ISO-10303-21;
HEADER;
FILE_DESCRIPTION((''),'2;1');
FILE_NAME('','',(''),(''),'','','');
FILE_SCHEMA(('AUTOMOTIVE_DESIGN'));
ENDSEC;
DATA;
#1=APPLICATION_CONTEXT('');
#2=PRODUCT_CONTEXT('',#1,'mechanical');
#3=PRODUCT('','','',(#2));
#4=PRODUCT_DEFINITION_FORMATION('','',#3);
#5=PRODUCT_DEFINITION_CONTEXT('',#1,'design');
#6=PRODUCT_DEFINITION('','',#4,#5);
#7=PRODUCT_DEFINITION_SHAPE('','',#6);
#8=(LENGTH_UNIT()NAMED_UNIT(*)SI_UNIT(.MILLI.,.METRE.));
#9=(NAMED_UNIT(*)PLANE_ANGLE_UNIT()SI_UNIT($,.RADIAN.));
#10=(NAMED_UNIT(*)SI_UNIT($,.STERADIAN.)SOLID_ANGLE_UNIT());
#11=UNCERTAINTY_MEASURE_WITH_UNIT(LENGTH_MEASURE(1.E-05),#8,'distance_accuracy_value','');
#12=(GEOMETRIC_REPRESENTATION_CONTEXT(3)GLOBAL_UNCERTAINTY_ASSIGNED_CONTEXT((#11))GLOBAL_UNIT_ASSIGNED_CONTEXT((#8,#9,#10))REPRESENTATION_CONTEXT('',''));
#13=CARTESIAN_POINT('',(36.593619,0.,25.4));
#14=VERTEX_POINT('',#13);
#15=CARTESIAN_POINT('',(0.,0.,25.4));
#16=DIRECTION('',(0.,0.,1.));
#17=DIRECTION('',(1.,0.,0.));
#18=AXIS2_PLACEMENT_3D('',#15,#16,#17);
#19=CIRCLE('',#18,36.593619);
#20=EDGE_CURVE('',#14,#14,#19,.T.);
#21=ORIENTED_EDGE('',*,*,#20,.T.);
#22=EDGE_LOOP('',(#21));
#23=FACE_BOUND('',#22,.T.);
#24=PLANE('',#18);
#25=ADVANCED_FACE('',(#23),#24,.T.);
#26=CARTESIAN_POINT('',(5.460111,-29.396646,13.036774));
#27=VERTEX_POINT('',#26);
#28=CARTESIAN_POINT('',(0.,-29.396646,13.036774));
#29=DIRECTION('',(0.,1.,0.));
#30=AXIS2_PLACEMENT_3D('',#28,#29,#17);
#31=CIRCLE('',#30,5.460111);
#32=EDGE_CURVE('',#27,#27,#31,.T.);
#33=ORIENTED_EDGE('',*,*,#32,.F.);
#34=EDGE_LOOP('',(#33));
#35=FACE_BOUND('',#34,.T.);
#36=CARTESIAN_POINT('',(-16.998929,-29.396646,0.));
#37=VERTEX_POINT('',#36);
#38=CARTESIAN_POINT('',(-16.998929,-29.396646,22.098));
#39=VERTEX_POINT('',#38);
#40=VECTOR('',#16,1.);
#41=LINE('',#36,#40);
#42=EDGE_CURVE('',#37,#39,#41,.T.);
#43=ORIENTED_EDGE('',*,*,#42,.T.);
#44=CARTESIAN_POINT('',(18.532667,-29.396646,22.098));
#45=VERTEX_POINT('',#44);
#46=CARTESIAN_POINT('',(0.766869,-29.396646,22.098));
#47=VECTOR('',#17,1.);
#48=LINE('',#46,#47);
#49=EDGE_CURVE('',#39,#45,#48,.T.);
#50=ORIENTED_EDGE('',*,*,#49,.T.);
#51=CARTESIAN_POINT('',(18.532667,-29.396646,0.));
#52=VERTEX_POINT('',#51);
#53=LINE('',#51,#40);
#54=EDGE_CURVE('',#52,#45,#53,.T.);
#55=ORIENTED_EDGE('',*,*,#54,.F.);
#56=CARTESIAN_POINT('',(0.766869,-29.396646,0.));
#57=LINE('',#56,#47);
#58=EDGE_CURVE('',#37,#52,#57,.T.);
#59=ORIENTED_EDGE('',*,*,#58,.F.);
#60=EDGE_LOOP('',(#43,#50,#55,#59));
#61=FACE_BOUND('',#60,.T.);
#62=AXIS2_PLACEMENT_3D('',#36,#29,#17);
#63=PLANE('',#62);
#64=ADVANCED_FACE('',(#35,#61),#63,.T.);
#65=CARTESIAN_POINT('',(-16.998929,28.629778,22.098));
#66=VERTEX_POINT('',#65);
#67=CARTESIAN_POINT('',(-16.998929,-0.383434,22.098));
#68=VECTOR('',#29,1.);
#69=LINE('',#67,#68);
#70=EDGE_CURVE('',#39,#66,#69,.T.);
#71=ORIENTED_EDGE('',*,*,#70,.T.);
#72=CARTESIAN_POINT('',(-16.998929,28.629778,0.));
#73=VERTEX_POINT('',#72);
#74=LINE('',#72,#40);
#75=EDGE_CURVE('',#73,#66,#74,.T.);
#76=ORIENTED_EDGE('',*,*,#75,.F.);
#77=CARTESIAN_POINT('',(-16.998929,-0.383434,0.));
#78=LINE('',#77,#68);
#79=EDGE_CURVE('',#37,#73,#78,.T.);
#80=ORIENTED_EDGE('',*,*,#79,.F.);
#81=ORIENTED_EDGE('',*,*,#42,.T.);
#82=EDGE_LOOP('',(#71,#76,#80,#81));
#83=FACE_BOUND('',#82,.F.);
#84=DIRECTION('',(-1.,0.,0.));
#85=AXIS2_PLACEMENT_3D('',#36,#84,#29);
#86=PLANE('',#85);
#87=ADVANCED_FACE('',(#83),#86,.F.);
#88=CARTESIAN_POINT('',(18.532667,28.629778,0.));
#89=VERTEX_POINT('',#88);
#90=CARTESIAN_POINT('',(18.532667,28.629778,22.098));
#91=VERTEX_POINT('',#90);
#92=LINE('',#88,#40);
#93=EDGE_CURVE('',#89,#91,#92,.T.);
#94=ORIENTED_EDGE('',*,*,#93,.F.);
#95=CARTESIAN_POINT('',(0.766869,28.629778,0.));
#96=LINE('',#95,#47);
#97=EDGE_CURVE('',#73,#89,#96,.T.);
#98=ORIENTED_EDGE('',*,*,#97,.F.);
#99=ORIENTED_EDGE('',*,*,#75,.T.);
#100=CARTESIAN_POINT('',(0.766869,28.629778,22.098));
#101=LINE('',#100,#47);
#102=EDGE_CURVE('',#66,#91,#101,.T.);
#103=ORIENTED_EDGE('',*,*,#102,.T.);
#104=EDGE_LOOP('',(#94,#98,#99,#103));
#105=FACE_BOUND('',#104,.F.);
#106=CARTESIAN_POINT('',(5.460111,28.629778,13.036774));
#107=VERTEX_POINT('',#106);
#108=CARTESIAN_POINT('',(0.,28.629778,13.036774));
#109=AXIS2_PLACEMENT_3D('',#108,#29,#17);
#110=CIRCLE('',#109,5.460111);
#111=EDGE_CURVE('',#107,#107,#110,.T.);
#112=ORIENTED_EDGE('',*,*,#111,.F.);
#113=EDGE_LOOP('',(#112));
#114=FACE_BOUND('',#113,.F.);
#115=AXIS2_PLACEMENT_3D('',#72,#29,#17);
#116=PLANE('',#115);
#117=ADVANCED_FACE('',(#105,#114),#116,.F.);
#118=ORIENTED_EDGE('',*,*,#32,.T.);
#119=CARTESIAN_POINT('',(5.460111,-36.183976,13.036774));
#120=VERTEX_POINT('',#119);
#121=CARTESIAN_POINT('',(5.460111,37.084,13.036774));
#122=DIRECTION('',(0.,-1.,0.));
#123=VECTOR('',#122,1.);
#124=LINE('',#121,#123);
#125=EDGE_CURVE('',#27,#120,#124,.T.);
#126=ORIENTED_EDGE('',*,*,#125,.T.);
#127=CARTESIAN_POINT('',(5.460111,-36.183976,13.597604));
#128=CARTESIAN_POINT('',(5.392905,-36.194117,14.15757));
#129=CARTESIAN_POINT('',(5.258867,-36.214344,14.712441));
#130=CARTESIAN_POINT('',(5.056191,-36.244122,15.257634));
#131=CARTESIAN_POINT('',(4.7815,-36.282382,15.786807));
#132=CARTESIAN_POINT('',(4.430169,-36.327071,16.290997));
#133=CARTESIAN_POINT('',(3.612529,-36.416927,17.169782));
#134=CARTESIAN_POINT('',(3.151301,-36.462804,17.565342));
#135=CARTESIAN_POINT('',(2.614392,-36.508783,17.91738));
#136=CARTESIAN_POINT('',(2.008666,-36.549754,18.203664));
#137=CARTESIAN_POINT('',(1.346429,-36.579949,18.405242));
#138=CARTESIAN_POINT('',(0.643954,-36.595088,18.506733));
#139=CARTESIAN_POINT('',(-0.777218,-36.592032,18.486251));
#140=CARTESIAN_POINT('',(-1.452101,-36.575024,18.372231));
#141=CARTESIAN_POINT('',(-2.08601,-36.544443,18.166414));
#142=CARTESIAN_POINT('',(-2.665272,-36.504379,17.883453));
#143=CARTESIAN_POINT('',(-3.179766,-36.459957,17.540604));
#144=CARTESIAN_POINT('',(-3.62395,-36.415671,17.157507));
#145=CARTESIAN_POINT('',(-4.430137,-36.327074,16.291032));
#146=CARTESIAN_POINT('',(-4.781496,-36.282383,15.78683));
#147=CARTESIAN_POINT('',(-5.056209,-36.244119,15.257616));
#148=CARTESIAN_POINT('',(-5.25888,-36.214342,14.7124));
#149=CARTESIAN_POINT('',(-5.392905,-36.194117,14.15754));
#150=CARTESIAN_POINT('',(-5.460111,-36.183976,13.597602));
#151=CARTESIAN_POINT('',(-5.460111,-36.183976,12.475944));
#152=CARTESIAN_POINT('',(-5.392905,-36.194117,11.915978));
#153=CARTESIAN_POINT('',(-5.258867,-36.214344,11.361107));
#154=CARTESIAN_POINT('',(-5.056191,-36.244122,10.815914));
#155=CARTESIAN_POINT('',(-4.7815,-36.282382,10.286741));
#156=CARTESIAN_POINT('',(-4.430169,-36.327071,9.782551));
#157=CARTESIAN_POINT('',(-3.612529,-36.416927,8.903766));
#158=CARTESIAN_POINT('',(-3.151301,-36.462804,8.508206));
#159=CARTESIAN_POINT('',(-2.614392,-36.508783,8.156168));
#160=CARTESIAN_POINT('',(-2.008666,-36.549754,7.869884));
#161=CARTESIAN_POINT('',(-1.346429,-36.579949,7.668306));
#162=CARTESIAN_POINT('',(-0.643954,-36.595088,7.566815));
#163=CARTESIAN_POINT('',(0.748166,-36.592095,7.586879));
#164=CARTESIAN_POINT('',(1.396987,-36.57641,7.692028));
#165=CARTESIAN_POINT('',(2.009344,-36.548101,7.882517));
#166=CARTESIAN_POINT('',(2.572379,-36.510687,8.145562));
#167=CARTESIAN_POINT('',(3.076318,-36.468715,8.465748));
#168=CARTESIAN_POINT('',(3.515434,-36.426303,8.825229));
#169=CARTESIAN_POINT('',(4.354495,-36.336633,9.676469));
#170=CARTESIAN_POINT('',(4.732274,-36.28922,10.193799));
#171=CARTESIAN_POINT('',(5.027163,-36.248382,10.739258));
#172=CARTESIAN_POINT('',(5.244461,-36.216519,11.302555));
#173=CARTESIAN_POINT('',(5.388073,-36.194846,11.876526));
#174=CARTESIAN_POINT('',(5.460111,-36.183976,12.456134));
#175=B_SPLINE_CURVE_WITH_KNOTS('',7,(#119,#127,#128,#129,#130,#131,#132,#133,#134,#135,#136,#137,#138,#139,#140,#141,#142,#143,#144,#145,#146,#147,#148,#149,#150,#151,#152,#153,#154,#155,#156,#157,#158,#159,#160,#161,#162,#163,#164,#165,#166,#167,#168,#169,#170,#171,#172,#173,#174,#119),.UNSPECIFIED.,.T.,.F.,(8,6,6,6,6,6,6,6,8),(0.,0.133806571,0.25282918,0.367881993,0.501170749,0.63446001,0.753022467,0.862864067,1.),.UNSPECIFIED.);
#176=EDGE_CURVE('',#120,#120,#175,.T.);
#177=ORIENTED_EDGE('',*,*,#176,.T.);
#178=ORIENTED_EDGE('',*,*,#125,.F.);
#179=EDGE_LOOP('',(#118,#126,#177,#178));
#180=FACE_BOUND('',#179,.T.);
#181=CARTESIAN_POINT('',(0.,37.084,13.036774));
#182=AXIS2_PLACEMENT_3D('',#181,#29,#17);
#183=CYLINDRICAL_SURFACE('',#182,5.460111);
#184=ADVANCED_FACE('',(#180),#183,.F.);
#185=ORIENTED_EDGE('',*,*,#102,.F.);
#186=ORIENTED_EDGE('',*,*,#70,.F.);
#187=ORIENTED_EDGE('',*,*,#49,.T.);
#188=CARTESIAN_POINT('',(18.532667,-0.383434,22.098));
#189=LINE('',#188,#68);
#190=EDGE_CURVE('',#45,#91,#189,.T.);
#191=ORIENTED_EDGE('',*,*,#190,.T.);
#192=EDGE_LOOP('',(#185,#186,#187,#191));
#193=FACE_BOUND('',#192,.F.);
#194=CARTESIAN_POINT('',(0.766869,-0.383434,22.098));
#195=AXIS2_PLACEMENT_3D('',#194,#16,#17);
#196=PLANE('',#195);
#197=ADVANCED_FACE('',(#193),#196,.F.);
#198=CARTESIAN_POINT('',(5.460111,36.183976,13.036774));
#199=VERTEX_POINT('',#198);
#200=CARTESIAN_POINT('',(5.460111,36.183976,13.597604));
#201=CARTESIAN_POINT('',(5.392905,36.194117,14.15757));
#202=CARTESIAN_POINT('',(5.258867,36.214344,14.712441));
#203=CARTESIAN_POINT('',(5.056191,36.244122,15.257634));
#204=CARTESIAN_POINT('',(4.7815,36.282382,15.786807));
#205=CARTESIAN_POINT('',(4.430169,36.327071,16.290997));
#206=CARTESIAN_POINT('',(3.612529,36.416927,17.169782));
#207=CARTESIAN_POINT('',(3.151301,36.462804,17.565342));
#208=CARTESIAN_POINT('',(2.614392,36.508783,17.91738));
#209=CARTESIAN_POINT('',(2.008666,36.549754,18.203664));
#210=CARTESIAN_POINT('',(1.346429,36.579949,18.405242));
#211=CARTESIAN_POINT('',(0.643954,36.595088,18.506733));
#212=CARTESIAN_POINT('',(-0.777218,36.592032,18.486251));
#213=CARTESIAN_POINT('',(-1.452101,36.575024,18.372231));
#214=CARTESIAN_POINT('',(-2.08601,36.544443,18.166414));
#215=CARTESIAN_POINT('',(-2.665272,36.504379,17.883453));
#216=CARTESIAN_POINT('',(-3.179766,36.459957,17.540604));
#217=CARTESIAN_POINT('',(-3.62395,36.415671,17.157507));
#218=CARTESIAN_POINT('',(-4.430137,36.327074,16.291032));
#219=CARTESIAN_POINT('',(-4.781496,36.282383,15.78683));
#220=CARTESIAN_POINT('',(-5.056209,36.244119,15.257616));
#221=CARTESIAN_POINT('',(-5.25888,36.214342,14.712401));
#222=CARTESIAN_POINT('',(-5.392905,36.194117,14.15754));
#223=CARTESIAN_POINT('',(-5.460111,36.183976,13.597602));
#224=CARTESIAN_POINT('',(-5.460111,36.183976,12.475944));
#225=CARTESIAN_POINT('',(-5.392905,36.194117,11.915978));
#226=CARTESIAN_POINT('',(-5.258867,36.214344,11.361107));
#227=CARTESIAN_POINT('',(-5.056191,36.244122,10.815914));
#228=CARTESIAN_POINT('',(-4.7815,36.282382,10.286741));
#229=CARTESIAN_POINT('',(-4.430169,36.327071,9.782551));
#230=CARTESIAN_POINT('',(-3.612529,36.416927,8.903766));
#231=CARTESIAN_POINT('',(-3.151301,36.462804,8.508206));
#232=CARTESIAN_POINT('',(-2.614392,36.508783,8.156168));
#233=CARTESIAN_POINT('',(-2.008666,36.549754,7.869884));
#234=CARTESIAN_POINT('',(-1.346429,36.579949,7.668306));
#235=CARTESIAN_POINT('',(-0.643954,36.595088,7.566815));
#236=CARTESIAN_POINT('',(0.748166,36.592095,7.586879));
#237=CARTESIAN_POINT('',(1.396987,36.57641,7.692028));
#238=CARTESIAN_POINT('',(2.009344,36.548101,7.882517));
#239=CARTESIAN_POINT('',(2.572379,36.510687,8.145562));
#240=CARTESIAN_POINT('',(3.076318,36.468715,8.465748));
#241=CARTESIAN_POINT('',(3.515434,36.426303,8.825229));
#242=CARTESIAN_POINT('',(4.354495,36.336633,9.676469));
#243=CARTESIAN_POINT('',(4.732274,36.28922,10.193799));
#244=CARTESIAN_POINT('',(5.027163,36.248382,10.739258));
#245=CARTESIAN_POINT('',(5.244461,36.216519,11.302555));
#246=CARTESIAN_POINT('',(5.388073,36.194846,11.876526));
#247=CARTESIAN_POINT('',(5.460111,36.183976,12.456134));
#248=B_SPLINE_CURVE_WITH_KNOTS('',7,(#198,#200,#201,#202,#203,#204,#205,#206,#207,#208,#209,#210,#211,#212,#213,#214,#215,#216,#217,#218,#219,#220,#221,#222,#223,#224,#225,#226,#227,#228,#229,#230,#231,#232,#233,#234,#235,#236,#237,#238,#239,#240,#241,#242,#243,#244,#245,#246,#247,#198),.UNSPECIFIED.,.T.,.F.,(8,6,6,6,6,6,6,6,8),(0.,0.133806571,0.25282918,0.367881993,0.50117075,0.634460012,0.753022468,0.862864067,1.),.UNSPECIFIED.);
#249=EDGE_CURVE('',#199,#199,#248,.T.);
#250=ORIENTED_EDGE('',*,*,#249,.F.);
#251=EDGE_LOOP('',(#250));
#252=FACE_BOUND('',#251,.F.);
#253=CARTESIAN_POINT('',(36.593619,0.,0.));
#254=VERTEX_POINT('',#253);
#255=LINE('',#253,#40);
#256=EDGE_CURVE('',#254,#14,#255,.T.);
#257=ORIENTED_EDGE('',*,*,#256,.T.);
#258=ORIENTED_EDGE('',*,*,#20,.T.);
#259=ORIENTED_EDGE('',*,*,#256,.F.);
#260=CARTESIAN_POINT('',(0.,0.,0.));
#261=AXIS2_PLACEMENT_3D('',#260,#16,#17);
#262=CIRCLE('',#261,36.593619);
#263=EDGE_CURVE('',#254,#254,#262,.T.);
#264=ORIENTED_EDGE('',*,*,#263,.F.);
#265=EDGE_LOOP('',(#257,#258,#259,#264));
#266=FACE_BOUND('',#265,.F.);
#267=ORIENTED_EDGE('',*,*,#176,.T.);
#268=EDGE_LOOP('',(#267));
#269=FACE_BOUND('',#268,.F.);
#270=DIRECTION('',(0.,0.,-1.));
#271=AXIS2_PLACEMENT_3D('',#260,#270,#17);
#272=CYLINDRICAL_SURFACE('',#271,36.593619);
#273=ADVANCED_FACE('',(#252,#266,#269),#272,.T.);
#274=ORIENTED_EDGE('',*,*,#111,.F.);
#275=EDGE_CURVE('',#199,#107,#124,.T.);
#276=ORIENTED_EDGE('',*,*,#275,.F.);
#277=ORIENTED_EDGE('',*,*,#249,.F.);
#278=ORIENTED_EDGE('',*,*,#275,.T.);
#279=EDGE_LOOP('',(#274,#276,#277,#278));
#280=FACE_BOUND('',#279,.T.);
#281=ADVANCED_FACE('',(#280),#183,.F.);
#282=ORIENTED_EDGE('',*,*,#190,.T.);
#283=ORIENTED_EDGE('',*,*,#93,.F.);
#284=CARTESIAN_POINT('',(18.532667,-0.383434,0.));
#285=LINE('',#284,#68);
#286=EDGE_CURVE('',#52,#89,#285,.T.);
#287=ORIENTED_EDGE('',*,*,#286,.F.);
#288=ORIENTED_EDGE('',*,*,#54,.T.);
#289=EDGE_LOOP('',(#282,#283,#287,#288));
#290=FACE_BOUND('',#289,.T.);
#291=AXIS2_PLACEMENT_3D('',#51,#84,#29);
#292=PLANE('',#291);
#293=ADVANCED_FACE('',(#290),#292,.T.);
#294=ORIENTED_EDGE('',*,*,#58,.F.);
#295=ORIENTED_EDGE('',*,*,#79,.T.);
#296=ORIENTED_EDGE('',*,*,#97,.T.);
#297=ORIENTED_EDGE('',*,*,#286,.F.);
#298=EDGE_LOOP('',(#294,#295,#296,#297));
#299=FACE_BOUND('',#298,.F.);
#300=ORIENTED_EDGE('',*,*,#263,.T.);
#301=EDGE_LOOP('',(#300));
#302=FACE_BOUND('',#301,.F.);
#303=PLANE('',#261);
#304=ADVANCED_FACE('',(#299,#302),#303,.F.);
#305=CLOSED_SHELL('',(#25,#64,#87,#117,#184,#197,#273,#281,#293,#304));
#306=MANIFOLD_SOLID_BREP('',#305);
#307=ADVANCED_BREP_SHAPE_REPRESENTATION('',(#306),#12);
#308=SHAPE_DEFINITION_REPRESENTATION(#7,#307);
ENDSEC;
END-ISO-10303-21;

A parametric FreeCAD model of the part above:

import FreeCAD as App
import Part
import Sketcher
Q = App.Units.Quantity

doc = App.newDocument("Part")
body = doc.addObject("PartDesign::Body", "Body")

# Sketch on XY plane
sketch1 = body.newObject("Sketcher::SketchObject", "Sketch")
sketch1.AttachmentSupport = (doc.getObject("XY_Plane"), [""])
sketch1.MapMode = "FlatFace"
sketch1.addGeometry(Part.Circle(App.Vector(0, 0, 0), App.Vector(0, 0, 1), 37), False)
sketch1.addConstraint(Sketcher.Constraint("Coincident", 0, 3, -1, 1))
sketch1.addConstraint(Sketcher.Constraint("Diameter", 0, 73.187238))
pad1 = body.newObject("PartDesign::Pad", "Pad")
pad1.Profile = sketch1
pad1.Length = Q("1 in")

# Sketch on XZ plane
sketch2 = body.newObject("Sketcher::SketchObject", "Sketch001")
sketch2.AttachmentSupport = (doc.getObject("XZ_Plane"), [""])
sketch2.MapMode = "FlatFace"
sketch2.AttachmentOffset = App.Placement(App.Vector(0, 0, -1.46 * 25.4), App.Rotation())
sketch2.addGeometry(Part.Circle(App.Vector(0, 13, 0), App.Vector(0, 0, 1), 5), False)
sketch2.addConstraint(Sketcher.Constraint("PointOnObject", 0, 3, -2))
sketch2.addConstraint(Sketcher.Constraint("Diameter", 0, 10.920222))
sketch2.addConstraint(Sketcher.Constraint("DistanceY", -1, 1, 0, 3, 13.036774))
pocket1 = body.newObject("PartDesign::Pocket", "Pocket")
pocket1.Profile = sketch2
pocket1.Length = Q("3.02 in")
pocket1.Reversed = True

# Sketch on XY plane
sketch3 = body.newObject("Sketcher::SketchObject", "Sketch002")
sketch3.AttachmentSupport = (doc.getObject("XY_Plane"), [""])
sketch3.MapMode = "FlatFace"
sketch3.addGeometry(Part.LineSegment(App.Vector(-17, 29, 0), App.Vector(-17, -29, 0)), False)
sketch3.addGeometry(Part.LineSegment(App.Vector(-17, -29, 0), App.Vector(19, -29, 0)), False)
sketch3.addGeometry(Part.LineSegment(App.Vector(19, -29, 0), App.Vector(19, 29, 0)), False)
sketch3.addGeometry(Part.LineSegment(App.Vector(19, 29, 0), App.Vector(-17, 29, 0)), False)
sketch3.addConstraint(Sketcher.Constraint("Coincident", 0, 2, 1, 1))
sketch3.addConstraint(Sketcher.Constraint("Coincident", 1, 2, 2, 1))
sketch3.addConstraint(Sketcher.Constraint("Coincident", 2, 2, 3, 1))
sketch3.addConstraint(Sketcher.Constraint("Coincident", 3, 2, 0, 1))
sketch3.addConstraint(Sketcher.Constraint("Vertical", 0))
sketch3.addConstraint(Sketcher.Constraint("Horizontal", 1))
sketch3.addConstraint(Sketcher.Constraint("Vertical", 2))
sketch3.addConstraint(Sketcher.Constraint("Horizontal", 3))
sketch3.addConstraint(Sketcher.Constraint("DistanceX", 1, 1, 1, 2, 35.531597))
sketch3.addConstraint(Sketcher.Constraint("DistanceY", 0, 2, 0, 1, 58.026424))
sketch3.addConstraint(Sketcher.Constraint("DistanceX", 0, 2, -1, 1, 16.998929))
sketch3.addConstraint(Sketcher.Constraint("DistanceY", -1, 1, 2, 2, 28.629778))
pocket2 = body.newObject("PartDesign::Pocket", "Pocket001")
pocket2.Profile = sketch3
pocket2.Length = Q("0.87 in")
pocket2.Reversed = True

doc.recompute()
